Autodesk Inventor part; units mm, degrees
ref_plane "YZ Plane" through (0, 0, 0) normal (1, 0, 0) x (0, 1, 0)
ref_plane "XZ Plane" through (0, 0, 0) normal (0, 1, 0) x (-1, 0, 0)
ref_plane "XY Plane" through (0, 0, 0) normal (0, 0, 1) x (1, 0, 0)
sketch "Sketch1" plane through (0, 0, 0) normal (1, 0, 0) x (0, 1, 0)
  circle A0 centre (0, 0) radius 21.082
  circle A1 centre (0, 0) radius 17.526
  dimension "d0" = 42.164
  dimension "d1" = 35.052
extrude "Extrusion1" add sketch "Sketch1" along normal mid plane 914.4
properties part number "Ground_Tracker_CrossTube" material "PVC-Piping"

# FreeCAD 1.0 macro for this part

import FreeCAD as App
import Part
import Sketcher

V = App.Vector
Q = App.Units.Quantity

doc = App.newDocument("Part")
body = doc.addObject("PartDesign::Body", "Body")

sketch1 = body.newObject("Sketcher::SketchObject", "Sketch")
sketch1.AttachmentSupport = (doc.getObject("YZ_Plane"), [""])
sketch1.MapMode = "FlatFace"
sketch1.addGeometry([
    Part.Circle(V(0, 0, 0), V(0, 0, 1), 21),
    Part.Circle(V(0, 0, 0), V(0, 0, 1), 18),
], False)
sketch1.addConstraint([
    Sketcher.Constraint("Coincident", 0, 3, -1, 1),
    Sketcher.Constraint("Coincident", 1, 3, -1, 1),
    Sketcher.Constraint("Diameter", 0, Q("1.66 in")),
    Sketcher.Constraint("Diameter", 1, Q("1.38 in")),
])
pad1 = body.newObject("PartDesign::Pad", "Pad")
pad1.Profile = sketch1
pad1.Length = Q("36 in")
pad1.Midplane = True

doc.recompute()
